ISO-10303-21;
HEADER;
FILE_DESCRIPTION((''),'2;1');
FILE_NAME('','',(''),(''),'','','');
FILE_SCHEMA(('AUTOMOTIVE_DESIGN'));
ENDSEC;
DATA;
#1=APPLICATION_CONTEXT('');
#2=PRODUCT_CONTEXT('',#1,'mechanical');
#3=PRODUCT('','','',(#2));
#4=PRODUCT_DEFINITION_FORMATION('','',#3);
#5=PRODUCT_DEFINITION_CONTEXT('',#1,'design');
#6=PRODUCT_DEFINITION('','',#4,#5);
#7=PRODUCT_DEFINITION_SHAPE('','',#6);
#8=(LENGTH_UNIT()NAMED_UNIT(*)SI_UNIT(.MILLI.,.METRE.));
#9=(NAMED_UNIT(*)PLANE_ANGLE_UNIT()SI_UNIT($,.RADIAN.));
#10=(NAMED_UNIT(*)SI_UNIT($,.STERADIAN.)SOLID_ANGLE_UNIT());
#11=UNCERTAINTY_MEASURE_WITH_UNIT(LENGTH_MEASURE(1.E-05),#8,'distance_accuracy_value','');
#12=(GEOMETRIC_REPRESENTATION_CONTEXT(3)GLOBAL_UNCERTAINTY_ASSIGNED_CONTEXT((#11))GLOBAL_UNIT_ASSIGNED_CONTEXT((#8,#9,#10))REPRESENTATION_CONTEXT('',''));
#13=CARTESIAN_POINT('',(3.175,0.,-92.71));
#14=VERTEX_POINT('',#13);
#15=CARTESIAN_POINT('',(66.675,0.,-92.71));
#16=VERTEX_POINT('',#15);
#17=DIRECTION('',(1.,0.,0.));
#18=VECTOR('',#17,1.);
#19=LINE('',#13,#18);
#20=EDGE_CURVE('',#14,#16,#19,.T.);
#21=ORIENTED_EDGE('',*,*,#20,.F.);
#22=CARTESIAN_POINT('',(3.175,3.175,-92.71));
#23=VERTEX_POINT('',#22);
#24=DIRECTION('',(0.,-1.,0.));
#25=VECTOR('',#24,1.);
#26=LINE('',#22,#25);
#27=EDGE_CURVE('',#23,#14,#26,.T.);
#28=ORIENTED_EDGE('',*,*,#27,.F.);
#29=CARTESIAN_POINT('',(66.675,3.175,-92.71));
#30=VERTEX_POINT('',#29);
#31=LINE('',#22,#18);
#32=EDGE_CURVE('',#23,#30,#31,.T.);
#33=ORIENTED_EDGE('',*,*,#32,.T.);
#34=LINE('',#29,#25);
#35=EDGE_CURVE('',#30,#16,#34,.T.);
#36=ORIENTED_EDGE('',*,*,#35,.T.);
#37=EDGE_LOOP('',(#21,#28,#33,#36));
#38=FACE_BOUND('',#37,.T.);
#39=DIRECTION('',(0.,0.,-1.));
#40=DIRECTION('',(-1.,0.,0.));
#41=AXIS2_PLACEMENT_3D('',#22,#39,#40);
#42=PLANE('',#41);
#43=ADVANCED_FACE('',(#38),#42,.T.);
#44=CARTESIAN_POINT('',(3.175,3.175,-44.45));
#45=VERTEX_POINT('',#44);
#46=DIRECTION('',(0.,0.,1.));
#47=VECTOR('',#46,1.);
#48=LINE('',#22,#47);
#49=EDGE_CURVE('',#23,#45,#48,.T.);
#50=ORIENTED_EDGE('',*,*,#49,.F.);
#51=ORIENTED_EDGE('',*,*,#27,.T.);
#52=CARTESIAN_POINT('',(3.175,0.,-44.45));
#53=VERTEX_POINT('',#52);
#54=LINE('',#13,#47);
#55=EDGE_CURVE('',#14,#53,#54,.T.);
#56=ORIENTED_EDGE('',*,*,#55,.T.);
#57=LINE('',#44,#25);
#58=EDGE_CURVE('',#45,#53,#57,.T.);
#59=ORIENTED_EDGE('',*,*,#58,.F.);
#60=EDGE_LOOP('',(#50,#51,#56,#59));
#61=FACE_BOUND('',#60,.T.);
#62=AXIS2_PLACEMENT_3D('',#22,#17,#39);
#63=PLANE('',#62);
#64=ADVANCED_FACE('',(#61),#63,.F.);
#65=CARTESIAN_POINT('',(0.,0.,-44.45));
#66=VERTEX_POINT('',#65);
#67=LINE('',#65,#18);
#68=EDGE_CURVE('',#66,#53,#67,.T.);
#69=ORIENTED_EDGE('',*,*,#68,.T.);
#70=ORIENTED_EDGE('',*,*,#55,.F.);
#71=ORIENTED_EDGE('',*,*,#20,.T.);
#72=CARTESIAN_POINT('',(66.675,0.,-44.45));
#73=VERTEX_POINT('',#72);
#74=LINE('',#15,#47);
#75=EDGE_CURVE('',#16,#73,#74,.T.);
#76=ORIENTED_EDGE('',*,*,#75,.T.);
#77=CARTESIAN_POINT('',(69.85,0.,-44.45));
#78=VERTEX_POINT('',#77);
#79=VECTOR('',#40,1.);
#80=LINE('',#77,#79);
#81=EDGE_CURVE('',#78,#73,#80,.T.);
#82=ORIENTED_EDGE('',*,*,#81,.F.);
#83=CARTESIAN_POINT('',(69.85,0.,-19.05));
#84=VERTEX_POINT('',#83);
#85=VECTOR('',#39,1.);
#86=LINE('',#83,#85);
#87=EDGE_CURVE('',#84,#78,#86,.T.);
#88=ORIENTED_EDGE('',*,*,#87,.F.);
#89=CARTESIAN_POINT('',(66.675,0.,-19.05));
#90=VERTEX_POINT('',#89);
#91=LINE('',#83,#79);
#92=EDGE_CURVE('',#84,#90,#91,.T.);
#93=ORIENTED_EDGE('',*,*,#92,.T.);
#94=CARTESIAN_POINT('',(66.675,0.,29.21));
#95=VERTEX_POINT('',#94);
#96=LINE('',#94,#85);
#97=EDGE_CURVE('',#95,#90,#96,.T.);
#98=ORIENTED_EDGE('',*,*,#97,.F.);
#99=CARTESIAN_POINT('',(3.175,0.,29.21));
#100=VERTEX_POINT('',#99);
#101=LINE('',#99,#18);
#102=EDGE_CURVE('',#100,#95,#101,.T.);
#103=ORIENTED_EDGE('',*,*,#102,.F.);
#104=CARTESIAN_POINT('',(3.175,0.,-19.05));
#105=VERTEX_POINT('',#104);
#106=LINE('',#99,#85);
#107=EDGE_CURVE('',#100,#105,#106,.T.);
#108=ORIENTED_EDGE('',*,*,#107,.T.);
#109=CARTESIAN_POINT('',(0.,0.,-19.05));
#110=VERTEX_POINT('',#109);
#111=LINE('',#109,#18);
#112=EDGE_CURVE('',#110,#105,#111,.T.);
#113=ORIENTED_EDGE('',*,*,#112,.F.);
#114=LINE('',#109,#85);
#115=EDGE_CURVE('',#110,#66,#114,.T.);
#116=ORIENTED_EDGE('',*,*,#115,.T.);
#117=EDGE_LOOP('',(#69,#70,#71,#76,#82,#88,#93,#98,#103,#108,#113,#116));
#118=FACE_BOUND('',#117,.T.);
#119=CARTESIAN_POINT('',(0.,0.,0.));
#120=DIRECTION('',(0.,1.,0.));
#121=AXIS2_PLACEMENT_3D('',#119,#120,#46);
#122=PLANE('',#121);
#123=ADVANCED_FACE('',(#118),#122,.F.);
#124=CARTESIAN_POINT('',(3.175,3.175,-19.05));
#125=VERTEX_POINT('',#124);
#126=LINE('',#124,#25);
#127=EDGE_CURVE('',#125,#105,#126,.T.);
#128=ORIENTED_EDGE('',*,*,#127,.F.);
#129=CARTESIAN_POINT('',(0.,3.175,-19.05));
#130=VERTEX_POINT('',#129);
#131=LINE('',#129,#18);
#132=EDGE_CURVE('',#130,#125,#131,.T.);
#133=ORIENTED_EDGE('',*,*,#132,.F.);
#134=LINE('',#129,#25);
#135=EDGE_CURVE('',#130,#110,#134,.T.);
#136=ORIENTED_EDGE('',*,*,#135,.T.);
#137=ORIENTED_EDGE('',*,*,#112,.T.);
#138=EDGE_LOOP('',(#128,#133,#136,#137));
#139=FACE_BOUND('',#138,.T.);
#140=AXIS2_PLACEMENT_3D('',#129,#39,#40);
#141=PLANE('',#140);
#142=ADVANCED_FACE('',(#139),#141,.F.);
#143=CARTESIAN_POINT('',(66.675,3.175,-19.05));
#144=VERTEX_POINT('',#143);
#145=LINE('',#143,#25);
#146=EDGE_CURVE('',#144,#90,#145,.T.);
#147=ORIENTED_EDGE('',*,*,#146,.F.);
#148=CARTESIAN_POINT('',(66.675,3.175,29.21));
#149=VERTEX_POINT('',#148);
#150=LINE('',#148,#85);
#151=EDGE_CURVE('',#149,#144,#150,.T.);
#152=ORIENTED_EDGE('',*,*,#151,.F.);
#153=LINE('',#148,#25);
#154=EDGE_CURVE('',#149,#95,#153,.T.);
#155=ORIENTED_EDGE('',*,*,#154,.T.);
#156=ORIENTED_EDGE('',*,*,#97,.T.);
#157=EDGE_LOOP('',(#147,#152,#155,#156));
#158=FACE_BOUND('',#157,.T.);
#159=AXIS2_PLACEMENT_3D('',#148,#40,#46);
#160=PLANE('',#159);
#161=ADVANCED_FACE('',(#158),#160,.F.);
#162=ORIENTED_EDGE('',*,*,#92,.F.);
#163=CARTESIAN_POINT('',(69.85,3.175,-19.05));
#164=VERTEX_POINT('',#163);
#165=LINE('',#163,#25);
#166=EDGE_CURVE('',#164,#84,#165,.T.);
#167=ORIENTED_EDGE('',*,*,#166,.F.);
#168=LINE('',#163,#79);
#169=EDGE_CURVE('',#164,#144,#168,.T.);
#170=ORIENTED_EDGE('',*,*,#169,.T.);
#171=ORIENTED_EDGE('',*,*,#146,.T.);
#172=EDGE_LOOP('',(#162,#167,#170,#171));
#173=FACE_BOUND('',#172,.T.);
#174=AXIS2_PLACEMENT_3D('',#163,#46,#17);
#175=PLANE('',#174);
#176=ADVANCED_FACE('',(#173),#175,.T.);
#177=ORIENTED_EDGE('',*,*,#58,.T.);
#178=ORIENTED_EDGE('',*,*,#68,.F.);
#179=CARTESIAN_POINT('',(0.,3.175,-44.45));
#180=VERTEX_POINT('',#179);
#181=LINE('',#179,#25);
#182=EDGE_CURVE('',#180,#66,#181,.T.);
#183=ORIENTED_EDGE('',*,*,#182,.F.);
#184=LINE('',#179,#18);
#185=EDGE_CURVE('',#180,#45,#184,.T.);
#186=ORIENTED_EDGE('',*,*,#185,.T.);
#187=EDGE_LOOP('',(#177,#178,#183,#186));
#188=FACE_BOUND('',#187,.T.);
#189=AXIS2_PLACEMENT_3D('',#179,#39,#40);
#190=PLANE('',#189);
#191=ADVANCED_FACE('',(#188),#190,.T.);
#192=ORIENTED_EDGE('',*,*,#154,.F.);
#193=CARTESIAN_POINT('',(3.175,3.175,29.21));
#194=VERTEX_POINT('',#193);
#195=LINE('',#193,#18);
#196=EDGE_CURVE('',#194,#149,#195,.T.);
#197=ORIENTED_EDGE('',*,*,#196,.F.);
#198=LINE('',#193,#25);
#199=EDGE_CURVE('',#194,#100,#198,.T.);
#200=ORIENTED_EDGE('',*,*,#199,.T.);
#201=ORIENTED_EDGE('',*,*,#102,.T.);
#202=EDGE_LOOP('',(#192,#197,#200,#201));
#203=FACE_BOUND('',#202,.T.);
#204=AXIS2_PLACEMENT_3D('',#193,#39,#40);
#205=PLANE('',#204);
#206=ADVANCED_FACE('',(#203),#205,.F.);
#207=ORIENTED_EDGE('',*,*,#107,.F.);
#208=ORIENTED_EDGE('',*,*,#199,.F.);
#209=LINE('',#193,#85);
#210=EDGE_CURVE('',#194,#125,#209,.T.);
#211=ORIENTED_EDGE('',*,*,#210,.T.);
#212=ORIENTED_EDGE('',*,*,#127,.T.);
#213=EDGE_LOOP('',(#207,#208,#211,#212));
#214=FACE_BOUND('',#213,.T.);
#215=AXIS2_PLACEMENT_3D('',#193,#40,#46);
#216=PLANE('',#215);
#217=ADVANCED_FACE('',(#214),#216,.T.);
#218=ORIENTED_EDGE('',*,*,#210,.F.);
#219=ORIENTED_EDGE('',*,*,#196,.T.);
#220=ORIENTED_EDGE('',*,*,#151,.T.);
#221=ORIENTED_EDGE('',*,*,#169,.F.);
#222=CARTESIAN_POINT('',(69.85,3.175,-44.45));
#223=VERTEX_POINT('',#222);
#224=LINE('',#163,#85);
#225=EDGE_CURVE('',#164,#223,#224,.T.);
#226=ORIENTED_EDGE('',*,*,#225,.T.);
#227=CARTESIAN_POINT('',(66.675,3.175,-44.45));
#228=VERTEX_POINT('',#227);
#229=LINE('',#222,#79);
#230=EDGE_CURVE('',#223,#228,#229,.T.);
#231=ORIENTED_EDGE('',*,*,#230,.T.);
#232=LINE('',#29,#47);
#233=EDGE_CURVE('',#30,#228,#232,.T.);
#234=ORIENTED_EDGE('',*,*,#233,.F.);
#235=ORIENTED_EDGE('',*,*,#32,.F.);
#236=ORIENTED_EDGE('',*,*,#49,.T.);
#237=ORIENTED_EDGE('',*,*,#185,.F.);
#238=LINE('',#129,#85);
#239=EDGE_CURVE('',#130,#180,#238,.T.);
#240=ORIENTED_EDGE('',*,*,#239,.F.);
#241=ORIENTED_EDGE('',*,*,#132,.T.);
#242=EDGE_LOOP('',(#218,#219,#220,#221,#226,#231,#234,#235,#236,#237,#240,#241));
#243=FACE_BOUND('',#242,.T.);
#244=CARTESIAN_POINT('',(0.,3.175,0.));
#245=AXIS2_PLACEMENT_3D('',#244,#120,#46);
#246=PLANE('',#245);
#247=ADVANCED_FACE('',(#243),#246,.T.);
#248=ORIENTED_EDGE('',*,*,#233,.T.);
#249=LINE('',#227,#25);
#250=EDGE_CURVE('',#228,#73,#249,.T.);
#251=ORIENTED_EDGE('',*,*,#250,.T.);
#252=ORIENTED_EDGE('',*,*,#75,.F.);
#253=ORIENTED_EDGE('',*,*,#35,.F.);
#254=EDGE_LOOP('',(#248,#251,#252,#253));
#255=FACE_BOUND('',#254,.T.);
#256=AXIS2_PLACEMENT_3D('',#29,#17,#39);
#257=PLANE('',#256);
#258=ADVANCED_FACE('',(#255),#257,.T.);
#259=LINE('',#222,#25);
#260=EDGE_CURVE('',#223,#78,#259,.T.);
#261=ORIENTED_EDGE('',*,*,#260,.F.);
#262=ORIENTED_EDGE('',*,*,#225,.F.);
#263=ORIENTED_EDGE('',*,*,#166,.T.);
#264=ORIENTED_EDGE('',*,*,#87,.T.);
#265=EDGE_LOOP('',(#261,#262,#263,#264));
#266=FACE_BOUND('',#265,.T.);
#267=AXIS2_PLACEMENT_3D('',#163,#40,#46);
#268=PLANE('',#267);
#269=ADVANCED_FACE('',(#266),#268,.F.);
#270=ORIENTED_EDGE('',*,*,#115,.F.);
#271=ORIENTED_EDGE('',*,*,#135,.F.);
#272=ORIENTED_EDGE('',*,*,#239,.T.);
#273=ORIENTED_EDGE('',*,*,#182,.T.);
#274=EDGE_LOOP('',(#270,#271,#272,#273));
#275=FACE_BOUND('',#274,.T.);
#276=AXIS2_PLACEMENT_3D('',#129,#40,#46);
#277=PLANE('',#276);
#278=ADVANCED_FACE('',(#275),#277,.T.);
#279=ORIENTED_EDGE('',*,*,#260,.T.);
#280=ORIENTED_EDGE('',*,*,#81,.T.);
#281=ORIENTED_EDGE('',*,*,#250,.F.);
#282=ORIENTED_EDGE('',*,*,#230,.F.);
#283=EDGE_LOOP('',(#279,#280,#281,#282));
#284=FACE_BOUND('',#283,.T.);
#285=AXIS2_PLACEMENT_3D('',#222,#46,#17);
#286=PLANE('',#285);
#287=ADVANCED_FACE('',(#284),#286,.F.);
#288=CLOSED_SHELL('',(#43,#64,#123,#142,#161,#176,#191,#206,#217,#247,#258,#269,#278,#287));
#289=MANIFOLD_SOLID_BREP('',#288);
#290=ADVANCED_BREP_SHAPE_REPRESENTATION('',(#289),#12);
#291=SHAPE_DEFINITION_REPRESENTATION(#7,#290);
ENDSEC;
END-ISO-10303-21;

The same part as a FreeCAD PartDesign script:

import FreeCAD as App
import Part
import Sketcher
Q = App.Units.Quantity

doc = App.newDocument("Part")
body = doc.addObject("PartDesign::Body", "Body")

# Sketch on XZ plane
sketch1 = body.newObject("Sketcher::SketchObject", "Sketch")
sketch1.AttachmentSupport = (doc.getObject("XZ_Plane"), [""])
sketch1.MapMode = "FlatFace"
sketch1.addGeometry(Part.LineSegment(App.Vector(3.175, 29.21, 0), App.Vector(66.675, 29.21, 0)), False)
sketch1.addGeometry(Part.LineSegment(App.Vector(66.675, 29.21, 0), App.Vector(66.675, -19.05, 0)), False)
sketch1.addGeometry(Part.LineSegment(App.Vector(66.675, -19.05, 0), App.Vector(69.85, -19.05, 0)), False)
sketch1.addGeometry(Part.LineSegment(App.Vector(69.85, -19.05, 0), App.Vector(69.85, -44.45, 0)), False)
sketch1.addGeometry(Part.LineSegment(App.Vector(69.85, -44.45, 0), App.Vector(66.675, -44.45, 0)), False)
sketch1.addGeometry(Part.LineSegment(App.Vector(66.675, -44.45, 0), App.Vector(66.675, -92.71, 0)), False)
sketch1.addGeometry(Part.LineSegment(App.Vector(66.675, -92.71, 0), App.Vector(3.175, -92.71, 0)), False)
sketch1.addGeometry(Part.LineSegment(App.Vector(3.175, -92.71, 0), App.Vector(3.175, -44.45, 0)), False)
sketch1.addGeometry(Part.LineSegment(App.Vector(3.175, -44.45, 0), App.Vector(0, -44.45, 0)), False)
sketch1.addGeometry(Part.LineSegment(App.Vector(0, -44.45, 0), App.Vector(0, -19.05, 0)), False)
sketch1.addGeometry(Part.LineSegment(App.Vector(0, -19.05, 0), App.Vector(3.175, -19.05, 0)), False)
sketch1.addGeometry(Part.LineSegment(App.Vector(3.175, -19.05, 0), App.Vector(3.175, 29.21, 0)), False)
sketch1.addConstraint(Sketcher.Constraint("Coincident", 0, 2, 1, 1))
sketch1.addConstraint(Sketcher.Constraint("Coincident", 1, 2, 2, 1))
sketch1.addConstraint(Sketcher.Constraint("Coincident", 2, 2, 3, 1))
sketch1.addConstraint(Sketcher.Constraint("Coincident", 3, 2, 4, 1))
sketch1.addConstraint(Sketcher.Constraint("Coincident", 4, 2, 5, 1))
sketch1.addConstraint(Sketcher.Constraint("Coincident", 5, 2, 6, 1))
sketch1.addConstraint(Sketcher.Constraint("Coincident", 6, 2, 7, 1))
sketch1.addConstraint(Sketcher.Constraint("Coincident", 7, 2, 8, 1))
sketch1.addConstraint(Sketcher.Constraint("Coincident", 8, 2, 9, 1))
sketch1.addConstraint(Sketcher.Constraint("Coincident", 9, 2, 10, 1))
sketch1.addConstraint(Sketcher.Constraint("Coincident", 10, 2, 11, 1))
sketch1.addConstraint(Sketcher.Constraint("Coincident", 11, 2, 0, 1))
sketch1.addConstraint(Sketcher.Constraint("Horizontal", 0))
sketch1.addConstraint(Sketcher.Constraint("Vertical", 1))
sketch1.addConstraint(Sketcher.Constraint("Horizontal", 2))
sketch1.addConstraint(Sketcher.Constraint("Vertical", 3))
sketch1.addConstraint(Sketcher.Constraint("Horizontal", 4))
sketch1.addConstraint(Sketcher.Constraint("Vertical", 5))
sketch1.addConstraint(Sketcher.Constraint("Horizontal", 6))
sketch1.addConstraint(Sketcher.Constraint("Vertical", 7))
sketch1.addConstraint(Sketcher.Constraint("Horizontal", 8))
sketch1.addConstraint(Sketcher.Constraint("Vertical", 9))
sketch1.addConstraint(Sketcher.Constraint("Horizontal", 10))
sketch1.addConstraint(Sketcher.Constraint("Vertical", 11))
sketch1.addConstraint(Sketcher.Constraint("PointOnObject", 8, 2, -2))
sketch1.addConstraint(Sketcher.Constraint("Horizontal", 4, 2, 7, 2))
sketch1.addConstraint(Sketcher.Constraint("Horizontal", 2, 2, 9, 2))
sketch1.addConstraint(Sketcher.Constraint("Vertical", 1, 2, 4, 2))
sketch1.addConstraint(Sketcher.Constraint("Vertical", 7, 2, 10, 2))
sketch1.addConstraint(Sketcher.Constraint("Equal", 4, 8))
sketch1.addConstraint(Sketcher.Constraint("Equal", 1, 5))
sketch1.addConstraint(Sketcher.Constraint("DistanceY", 3, 2, 3, 1, Q("1 in")))
sketch1.addConstraint(Sketcher.Constraint("DistanceX", 0, 1, 0, 2, Q("2.5 in")))
sketch1.addConstraint(Sketcher.Constraint("DistanceY", 1, 2, 1, 1, Q("1.9 in")))
sketch1.addConstraint(Sketcher.Constraint("DistanceX", 2, 1, 2, 2, Q("0.125 in")))
sketch1.addConstraint(Sketcher.Constraint("DistanceY", -1, 1, 0, 2, Q("1.15 in")))
pad1 = body.newObject("PartDesign::Pad", "Pad")
pad1.Profile = sketch1
pad1.Length = Q("0.125 in")
pad1.Reversed = True

doc.recompute()
